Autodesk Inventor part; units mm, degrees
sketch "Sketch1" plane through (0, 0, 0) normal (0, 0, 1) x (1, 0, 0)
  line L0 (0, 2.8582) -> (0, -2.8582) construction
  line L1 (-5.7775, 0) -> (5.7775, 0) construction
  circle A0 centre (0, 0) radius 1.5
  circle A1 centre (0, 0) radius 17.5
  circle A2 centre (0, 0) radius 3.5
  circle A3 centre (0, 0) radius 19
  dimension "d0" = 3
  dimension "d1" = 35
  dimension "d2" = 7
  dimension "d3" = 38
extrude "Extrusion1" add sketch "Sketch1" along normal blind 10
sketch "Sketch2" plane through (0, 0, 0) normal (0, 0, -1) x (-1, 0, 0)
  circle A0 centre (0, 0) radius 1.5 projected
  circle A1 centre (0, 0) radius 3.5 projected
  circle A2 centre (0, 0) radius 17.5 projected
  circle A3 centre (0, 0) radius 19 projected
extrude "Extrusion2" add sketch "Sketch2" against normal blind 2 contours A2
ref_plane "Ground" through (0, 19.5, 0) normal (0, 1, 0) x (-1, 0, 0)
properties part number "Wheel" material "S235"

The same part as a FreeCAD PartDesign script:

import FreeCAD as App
import Part
import Sketcher
Q = App.Units.Quantity

doc = App.newDocument("Part")
params = doc.addObject("Spreadsheet::Sheet", "Params")
for row, (alias, value) in enumerate([
    ("sketch1_diameter", "7 mm"),
    ("sketch1_diameter2", "3 mm"),
    ("sketch1_diameter3", "38 mm"),
    ("sketch1_diameter4", "35 mm"),
    ("pad1_length", "10 mm"),
    ("sketch2_diameter", "35 mm"),
    ("sketch2_diameter2", "7 mm"),
    ("pad2_length", "2 mm"),
], start=1):
    params.set(f"A{row}", alias)
    params.set(f"B{row}", "=" + value)
    params.setAlias(f"B{row}", alias)

body = doc.addObject("PartDesign::Body", "Body")
body.AllowCompound = True

# Sketch on XY plane
sketch1 = body.newObject("Sketcher::SketchObject", "Sketch")
sketch1.AttachmentSupport = (doc.getObject("XY_Plane"), [""])
sketch1.MapMode = "FlatFace"
sketch1.addGeometry(Part.Circle(App.Vector(0, 0, 0), App.Vector(0, 0, 1), 3.5), False)
sketch1.addGeometry(Part.Circle(App.Vector(0, 0, 0), App.Vector(0, 0, 1), 1.5), False)
sketch1.addGeometry(Part.Circle(App.Vector(0, 0, 0), App.Vector(0, 0, 1), 19), False)
sketch1.addGeometry(Part.Circle(App.Vector(0, 0, 0), App.Vector(0, 0, 1), 17.5), False)
sketch1.addConstraint(Sketcher.Constraint("Coincident", 0, 3, -1, 1))
sketch1.addConstraint(Sketcher.Constraint("Coincident", 1, 3, -1, 1))
sketch1.addConstraint(Sketcher.Constraint("Coincident", 2, 3, -1, 1))
sketch1.addConstraint(Sketcher.Constraint("Coincident", 3, 3, -1, 1))
sketch1.addConstraint(Sketcher.Constraint("Diameter", 0, Q("7 mm")))
sketch1.addConstraint(Sketcher.Constraint("Diameter", 1, Q("3 mm")))
sketch1.addConstraint(Sketcher.Constraint("Diameter", 2, Q("38 mm")))
sketch1.addConstraint(Sketcher.Constraint("Diameter", 3, Q("35 mm")))
sketch1.setExpression("Constraints[4]", "Params.sketch1_diameter")
sketch1.setExpression("Constraints[5]", "Params.sketch1_diameter2")
sketch1.setExpression("Constraints[6]", "Params.sketch1_diameter3")
sketch1.setExpression("Constraints[7]", "Params.sketch1_diameter4")
pad1 = body.newObject("PartDesign::Pad", "Pad")
pad1.Profile = sketch1
pad1.setExpression("Length", "Params.pad1_length")

# Sketch on XY plane
sketch2 = body.newObject("Sketcher::SketchObject", "Sketch001")
sketch2.AttachmentSupport = (doc.getObject("XY_Plane"), [""])
sketch2.MapMode = "FlatFace"
sketch2.addGeometry(Part.Circle(App.Vector(0, 0, 0), App.Vector(0, 0, 1), 17.5), False)
sketch2.addGeometry(Part.Circle(App.Vector(0, 0, 0), App.Vector(0, 0, 1), 3.5), False)
sketch2.addConstraint(Sketcher.Constraint("Coincident", 0, 3, -1, 1))
sketch2.addConstraint(Sketcher.Constraint("Coincident", 1, 3, -1, 1))
sketch2.addConstraint(Sketcher.Constraint("Diameter", 0, Q("35 mm")))
sketch2.addConstraint(Sketcher.Constraint("Diameter", 1, Q("7 mm")))
sketch2.setExpression("Constraints[2]", "Params.sketch2_diameter")
sketch2.setExpression("Constraints[3]", "Params.sketch2_diameter2")
pad2 = body.newObject("PartDesign::Pad", "Pad001")
pad2.Profile = sketch2
pad2.setExpression("Length", "Params.pad2_length")

doc.recompute()
